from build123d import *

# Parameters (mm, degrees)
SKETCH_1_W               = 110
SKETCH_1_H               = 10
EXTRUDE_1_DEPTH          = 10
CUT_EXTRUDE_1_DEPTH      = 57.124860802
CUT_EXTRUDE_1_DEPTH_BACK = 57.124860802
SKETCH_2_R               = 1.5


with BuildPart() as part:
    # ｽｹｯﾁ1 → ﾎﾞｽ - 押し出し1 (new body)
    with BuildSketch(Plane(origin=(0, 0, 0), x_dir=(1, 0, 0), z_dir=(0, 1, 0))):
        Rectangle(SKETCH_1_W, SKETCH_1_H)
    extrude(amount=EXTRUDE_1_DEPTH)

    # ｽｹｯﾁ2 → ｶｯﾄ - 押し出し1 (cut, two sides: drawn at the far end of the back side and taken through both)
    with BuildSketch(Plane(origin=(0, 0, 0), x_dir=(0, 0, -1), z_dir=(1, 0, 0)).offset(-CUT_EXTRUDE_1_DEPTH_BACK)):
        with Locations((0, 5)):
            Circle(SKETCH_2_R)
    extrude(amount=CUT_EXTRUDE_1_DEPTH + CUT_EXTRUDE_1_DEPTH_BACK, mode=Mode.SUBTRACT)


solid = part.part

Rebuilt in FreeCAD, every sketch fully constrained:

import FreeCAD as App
import Part
import Sketcher
from FreeCAD import Vector


def add_polygon(sketch, points):
    """Adds a closed chain of lines whose ends are joined by coincident constraints."""
    first, n = sketch.GeometryCount, len(points)
    for a, b in zip(points, points[1:] + points[:1]):
        sketch.addGeometry(Part.LineSegment(App.Vector(*a, 0), App.Vector(*b, 0)), False)
    for i in range(n):
        sketch.addConstraint(Sketcher.Constraint("Coincident", first + i, 2, first + (i + 1) % n, 1))

doc = App.newDocument("Part")
body = doc.addObject("PartDesign::Body", "Body")

# Sketch on XZ plane
sketch1 = body.newObject("Sketcher::SketchObject", "Sketch")
sketch1.AttachmentSupport = (doc.getObject("XZ_Plane"), [""])
sketch1.MapMode = "FlatFace"
add_polygon(sketch1, [(-55, -5), (-55, 5), (55, 5), (55, -5)])  # lines 0-3
sketch1.addConstraint(Sketcher.Constraint("Vertical", 0))
sketch1.addConstraint(Sketcher.Constraint("Horizontal", 1))
sketch1.addConstraint(Sketcher.Constraint("Vertical", 2))
sketch1.addConstraint(Sketcher.Constraint("Horizontal", 3))
sketch1.addConstraint(Sketcher.Constraint("Symmetric", 0, 2, 2, 2, -1, 1))
sketch1.addConstraint(Sketcher.Constraint("DistanceX", 1, 1, 1, 2, 110.0))
sketch1.addConstraint(Sketcher.Constraint("DistanceY", 0, 1, 0, 2, 10.0))
pad1 = body.newObject("PartDesign::Pad", "Pad")
pad1.Profile = sketch1
pad1.Length = 10
pad1.Reversed = True

# Sketch on YZ plane
sketch2 = body.newObject("Sketcher::SketchObject", "Sketch001")
sketch2.AttachmentSupport = (doc.getObject("YZ_Plane"), [""])
sketch2.MapMode = "FlatFace"
sketch2.addGeometry(Part.Circle(Vector(5, 0, 0), Vector(0, 0, 1), 1.5), False)
sketch2.addConstraint(Sketcher.Constraint("PointOnObject", 0, 3, -1))
sketch2.addConstraint(Sketcher.Constraint("Diameter", 0, 3.0))
sketch2.addConstraint(Sketcher.Constraint("DistanceX", -1, 1, 0, 3, 5.0))
pocket1 = body.newObject("PartDesign::Pocket", "Pocket")
pocket1.Profile = sketch2
pocket1.Type = "ThroughAll"
pocket1.Midplane = True

doc.recompute()
